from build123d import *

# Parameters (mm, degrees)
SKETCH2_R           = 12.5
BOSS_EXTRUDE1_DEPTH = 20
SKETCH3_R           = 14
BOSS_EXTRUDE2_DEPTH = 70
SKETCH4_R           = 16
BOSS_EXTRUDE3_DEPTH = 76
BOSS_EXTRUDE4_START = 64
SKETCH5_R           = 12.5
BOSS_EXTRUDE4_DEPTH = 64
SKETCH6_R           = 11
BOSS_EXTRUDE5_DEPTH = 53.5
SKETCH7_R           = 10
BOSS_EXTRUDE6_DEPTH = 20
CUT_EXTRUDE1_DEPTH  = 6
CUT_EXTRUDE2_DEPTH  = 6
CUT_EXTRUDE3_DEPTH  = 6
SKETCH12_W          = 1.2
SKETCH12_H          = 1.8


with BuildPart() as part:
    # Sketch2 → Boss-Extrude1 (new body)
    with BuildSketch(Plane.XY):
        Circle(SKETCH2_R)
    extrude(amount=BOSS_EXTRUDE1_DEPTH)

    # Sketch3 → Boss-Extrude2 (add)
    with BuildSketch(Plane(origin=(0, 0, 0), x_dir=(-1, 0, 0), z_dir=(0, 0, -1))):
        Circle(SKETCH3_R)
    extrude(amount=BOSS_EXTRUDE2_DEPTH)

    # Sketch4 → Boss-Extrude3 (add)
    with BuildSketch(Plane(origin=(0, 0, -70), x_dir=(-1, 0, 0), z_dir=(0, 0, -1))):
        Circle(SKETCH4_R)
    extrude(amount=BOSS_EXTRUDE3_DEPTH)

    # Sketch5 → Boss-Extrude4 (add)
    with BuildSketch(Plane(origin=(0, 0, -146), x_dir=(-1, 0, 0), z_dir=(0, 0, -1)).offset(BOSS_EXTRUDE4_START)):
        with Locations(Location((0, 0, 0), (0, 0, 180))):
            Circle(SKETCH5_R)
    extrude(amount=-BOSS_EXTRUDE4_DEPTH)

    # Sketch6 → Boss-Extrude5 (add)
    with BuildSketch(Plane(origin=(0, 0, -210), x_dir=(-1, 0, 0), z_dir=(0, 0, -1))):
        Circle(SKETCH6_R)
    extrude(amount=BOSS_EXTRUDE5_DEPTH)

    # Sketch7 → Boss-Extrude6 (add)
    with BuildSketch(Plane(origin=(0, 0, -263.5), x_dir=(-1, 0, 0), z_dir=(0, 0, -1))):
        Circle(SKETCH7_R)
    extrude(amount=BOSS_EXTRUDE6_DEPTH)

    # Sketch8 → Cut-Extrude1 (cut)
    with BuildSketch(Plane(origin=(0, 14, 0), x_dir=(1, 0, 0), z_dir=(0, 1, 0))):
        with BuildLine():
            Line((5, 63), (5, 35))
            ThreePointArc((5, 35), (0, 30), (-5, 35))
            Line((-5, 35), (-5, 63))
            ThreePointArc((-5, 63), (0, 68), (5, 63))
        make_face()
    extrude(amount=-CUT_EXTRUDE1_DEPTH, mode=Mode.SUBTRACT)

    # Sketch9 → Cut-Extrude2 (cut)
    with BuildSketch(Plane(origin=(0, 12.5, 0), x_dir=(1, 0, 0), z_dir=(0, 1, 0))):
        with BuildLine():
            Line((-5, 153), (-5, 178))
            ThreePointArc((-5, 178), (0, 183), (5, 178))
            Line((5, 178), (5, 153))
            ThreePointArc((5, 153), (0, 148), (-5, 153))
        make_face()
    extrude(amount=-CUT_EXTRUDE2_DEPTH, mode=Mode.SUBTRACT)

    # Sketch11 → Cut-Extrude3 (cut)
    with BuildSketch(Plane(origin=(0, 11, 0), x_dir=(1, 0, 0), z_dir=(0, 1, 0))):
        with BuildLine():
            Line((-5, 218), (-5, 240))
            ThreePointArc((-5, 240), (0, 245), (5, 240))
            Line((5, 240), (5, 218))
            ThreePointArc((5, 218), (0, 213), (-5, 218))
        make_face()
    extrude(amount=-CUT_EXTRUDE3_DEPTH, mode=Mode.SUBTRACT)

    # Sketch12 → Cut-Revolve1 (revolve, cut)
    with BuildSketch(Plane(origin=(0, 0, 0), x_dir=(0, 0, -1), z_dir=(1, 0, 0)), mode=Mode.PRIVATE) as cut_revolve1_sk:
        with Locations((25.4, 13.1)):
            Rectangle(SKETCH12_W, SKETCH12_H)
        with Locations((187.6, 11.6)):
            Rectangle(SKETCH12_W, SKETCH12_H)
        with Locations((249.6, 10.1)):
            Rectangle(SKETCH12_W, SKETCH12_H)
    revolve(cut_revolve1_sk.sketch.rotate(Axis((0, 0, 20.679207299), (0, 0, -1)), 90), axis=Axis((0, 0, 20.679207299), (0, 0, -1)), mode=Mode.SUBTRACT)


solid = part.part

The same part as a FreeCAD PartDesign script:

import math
import FreeCAD as App
import Part
import Sketcher

V = App.Vector

doc = App.newDocument("Part")
params = doc.addObject("Spreadsheet::Sheet", "Params")
for row, (alias, value) in enumerate([
    ("sketch1_diameter", "25 mm"),
    ("pad1_length", "20 mm"),
    ("sketch2_diameter", "28 mm"),
    ("pad2_length", "70 mm"),
    ("sketch3_diameter", "32 mm"),
    ("pad3_length", "76 mm"),
    ("sketch4_diameter", "25 mm"),
    ("pad4_length", "64 mm"),
    ("sketch5_diameter", "22 mm"),
    ("pad5_length", "53.5 mm"),
    ("sketch6_diameter", "20 mm"),
    ("pad6_length", "20 mm"),
    ("sketch7_radius", "5 mm"),
    ("sketch7_height", "28 mm"),
    ("pocket1_length", "6 mm"),
    ("sketch8_radius", "5 mm"),
    ("sketch8_height", "25 mm"),
    ("pocket2_length", "6 mm"),
    ("sketch9_radius", "5 mm"),
    ("sketch9_height", "22 mm"),
    ("pocket3_length", "6 mm"),
    ("sketch10_width", "1.8 mm"),
    ("sketch10_height", "1.2 mm"),
    ("groove_angle", "360 deg"),
], start=1):
    params.set(f"A{row}", alias)
    params.set(f"B{row}", "=" + value)
    params.setAlias(f"B{row}", alias)

body = doc.addObject("PartDesign::Body", "Body")

# Sketch on XY plane
sketch1 = body.newObject("Sketcher::SketchObject", "Sketch")
sketch1.AttachmentSupport = (doc.getObject("XY_Plane"), [""])
sketch1.MapMode = "FlatFace"
sketch1.addGeometry(Part.Circle(V(0, 0, 0), V(0, 0, 1), 12.5), False)
sketch1.addConstraint([
    Sketcher.Constraint("Coincident", 0, 3, -1, 1),
    Sketcher.Constraint("Diameter", 0, 25.0),
])
sketch1.setExpression("Constraints[1]", "Params.sketch1_diameter")
pad1 = body.newObject("PartDesign::Pad", "Pad")
pad1.Profile = sketch1
pad1.setExpression("Length", "Params.pad1_length")

# Sketch on XY plane
sketch2 = body.newObject("Sketcher::SketchObject", "Sketch001")
sketch2.AttachmentSupport = (doc.getObject("XY_Plane"), [""])
sketch2.MapMode = "FlatFace"
sketch2.addGeometry(Part.Circle(V(0, 0, 0), V(0, 0, 1), 14), False)
sketch2.addConstraint([
    Sketcher.Constraint("Coincident", 0, 3, -1, 1),
    Sketcher.Constraint("Diameter", 0, 28.0),
])
sketch2.setExpression("Constraints[1]", "Params.sketch2_diameter")
pad2 = body.newObject("PartDesign::Pad", "Pad001")
pad2.Profile = sketch2
pad2.setExpression("Length", "Params.pad2_length")
pad2.Reversed = True

# Sketch on XY plane
sketch3 = body.newObject("Sketcher::SketchObject", "Sketch002")
sketch3.AttachmentSupport = (doc.getObject("XY_Plane"), [""])
sketch3.MapMode = "FlatFace"
sketch3.AttachmentOffset = App.Placement(V(0, 0, -70), App.Rotation())
sketch3.addGeometry(Part.Circle(V(0, 0, 0), V(0, 0, 1), 16), False)
sketch3.addConstraint([
    Sketcher.Constraint("Coincident", 0, 3, -1, 1),
    Sketcher.Constraint("Diameter", 0, 32.0),
])
sketch3.setExpression("Constraints[1]", "Params.sketch3_diameter")
pad3 = body.newObject("PartDesign::Pad", "Pad002")
pad3.Profile = sketch3
pad3.setExpression("Length", "Params.pad3_length")
pad3.Reversed = True

# Sketch on XY plane
sketch4 = body.newObject("Sketcher::SketchObject", "Sketch003")
sketch4.AttachmentSupport = (doc.getObject("XY_Plane"), [""])
sketch4.MapMode = "FlatFace"
sketch4.AttachmentOffset = App.Placement(V(0, 0, -210), App.Rotation())
sketch4.addGeometry(Part.Circle(V(0, 0, 0), V(0, 0, 1), 12.5), False)
sketch4.addConstraint([
    Sketcher.Constraint("Coincident", 0, 3, -1, 1),
    Sketcher.Constraint("Diameter", 0, 25.0),
])
sketch4.setExpression("Constraints[1]", "Params.sketch4_diameter")
pad4 = body.newObject("PartDesign::Pad", "Pad003")
pad4.Profile = sketch4
pad4.setExpression("Length", "Params.pad4_length")

# Sketch on XY plane
sketch5 = body.newObject("Sketcher::SketchObject", "Sketch004")
sketch5.AttachmentSupport = (doc.getObject("XY_Plane"), [""])
sketch5.MapMode = "FlatFace"
sketch5.AttachmentOffset = App.Placement(V(0, 0, -210), App.Rotation())
sketch5.addGeometry(Part.Circle(V(0, 0, 0), V(0, 0, 1), 11), False)
sketch5.addConstraint([
    Sketcher.Constraint("Coincident", 0, 3, -1, 1),
    Sketcher.Constraint("Diameter", 0, 22.0),
])
sketch5.setExpression("Constraints[1]", "Params.sketch5_diameter")
pad5 = body.newObject("PartDesign::Pad", "Pad004")
pad5.Profile = sketch5
pad5.setExpression("Length", "Params.pad5_length")
pad5.Reversed = True

# Sketch on XY plane
sketch6 = body.newObject("Sketcher::SketchObject", "Sketch005")
sketch6.AttachmentSupport = (doc.getObject("XY_Plane"), [""])
sketch6.MapMode = "FlatFace"
sketch6.AttachmentOffset = App.Placement(V(0, 0, -263.5), App.Rotation())
sketch6.addGeometry(Part.Circle(V(0, 0, 0), V(0, 0, 1), 10), False)
sketch6.addConstraint([
    Sketcher.Constraint("Coincident", 0, 3, -1, 1),
    Sketcher.Constraint("Diameter", 0, 20.0),
])
sketch6.setExpression("Constraints[1]", "Params.sketch6_diameter")
pad6 = body.newObject("PartDesign::Pad", "Pad005")
pad6.Profile = sketch6
pad6.setExpression("Length", "Params.pad6_length")
pad6.Reversed = True

# Sketch on XZ plane
sketch7 = body.newObject("Sketcher::SketchObject", "Sketch006")
sketch7.AttachmentSupport = (doc.getObject("XZ_Plane"), [""])
sketch7.MapMode = "FlatFace"
sketch7.AttachmentOffset = App.Placement(V(0, 0, -14), App.Rotation())
sketch7.addGeometry([
    Part.LineSegment(V(5, -35, 0), V(5, -63, 0)),
    Part.ArcOfCircle(Part.Circle(V(0, -63, 0), V(0, 0, 1), 5), math.radians(180), math.radians(360)),
    Part.LineSegment(V(-5, -63, 0), V(-5, -35, 0)),
    Part.ArcOfCircle(Part.Circle(V(0, -35, 0), V(0, 0, 1), 5), math.radians(0), math.radians(180)),
], False)
sketch7.addConstraint([
    Sketcher.Constraint("Tangent", 0, 2, 1, 2),
    Sketcher.Constraint("Tangent", 1, 1, 2, 1),
    Sketcher.Constraint("Tangent", 2, 2, 3, 2),
    Sketcher.Constraint("Tangent", 3, 1, 0, 1),
    Sketcher.Constraint("Vertical", 0),
    Sketcher.Constraint("Vertical", 2),
    Sketcher.Constraint("PointOnObject", 1, 3, -2),
    Sketcher.Constraint("Radius", 1, 5.0),
    Sketcher.Constraint("DistanceY", 0, 2, 0, 1, 28.0),
    Sketcher.Constraint("DistanceY", 1, 3, -1, 1, 63.0),
])
sketch7.setExpression("Constraints[7]", "Params.sketch7_radius")
sketch7.setExpression("Constraints[8]", "Params.sketch7_height")
pocket1 = body.newObject("PartDesign::Pocket", "Pocket")
pocket1.Profile = sketch7
pocket1.setExpression("Length", "Params.pocket1_length")
pocket1.Reversed = True

# Sketch on XZ plane
sketch8 = body.newObject("Sketcher::SketchObject", "Sketch007")
sketch8.AttachmentSupport = (doc.getObject("XZ_Plane"), [""])
sketch8.MapMode = "FlatFace"
sketch8.AttachmentOffset = App.Placement(V(0, 0, -12.5), App.Rotation())
sketch8.addGeometry([
    Part.LineSegment(V(-5, -178, 0), V(-5, -153, 0)),
    Part.ArcOfCircle(Part.Circle(V(0, -153, 0), V(0, 0, 1), 5), math.radians(0), math.radians(180)),
    Part.LineSegment(V(5, -153, 0), V(5, -178, 0)),
    Part.ArcOfCircle(Part.Circle(V(0, -178, 0), V(0, 0, 1), 5), math.radians(180), math.radians(360)),
], False)
sketch8.addConstraint([
    Sketcher.Constraint("Tangent", 0, 2, 1, 2),
    Sketcher.Constraint("Tangent", 1, 1, 2, 1),
    Sketcher.Constraint("Tangent", 2, 2, 3, 2),
    Sketcher.Constraint("Tangent", 3, 1, 0, 1),
    Sketcher.Constraint("Vertical", 0),
    Sketcher.Constraint("Vertical", 2),
    Sketcher.Constraint("PointOnObject", 1, 3, -2),
    Sketcher.Constraint("Radius", 1, 5.0),
    Sketcher.Constraint("DistanceY", 0, 1, 0, 2, 25.0),
    Sketcher.Constraint("DistanceY", 1, 3, -1, 1, 153.0),
])
sketch8.setExpression("Constraints[7]", "Params.sketch8_radius")
sketch8.setExpression("Constraints[8]", "Params.sketch8_height")
pocket2 = body.newObject("PartDesign::Pocket", "Pocket001")
pocket2.Profile = sketch8
pocket2.setExpression("Length", "Params.pocket2_length")
pocket2.Reversed = True

# Sketch on XZ plane
sketch9 = body.newObject("Sketcher::SketchObject", "Sketch008")
sketch9.AttachmentSupport = (doc.getObject("XZ_Plane"), [""])
sketch9.MapMode = "FlatFace"
sketch9.AttachmentOffset = App.Placement(V(0, 0, -11), App.Rotation())
sketch9.addGeometry([
    Part.LineSegment(V(-5, -240, 0), V(-5, -218, 0)),
    Part.ArcOfCircle(Part.Circle(V(0, -218, 0), V(0, 0, 1), 5), math.radians(0), math.radians(180)),
    Part.LineSegment(V(5, -218, 0), V(5, -240, 0)),
    Part.ArcOfCircle(Part.Circle(V(0, -240, 0), V(0, 0, 1), 5), math.radians(180), math.radians(360)),
], False)
sketch9.addConstraint([
    Sketcher.Constraint("Tangent", 0, 2, 1, 2),
    Sketcher.Constraint("Tangent", 1, 1, 2, 1),
    Sketcher.Constraint("Tangent", 2, 2, 3, 2),
    Sketcher.Constraint("Tangent", 3, 1, 0, 1),
    Sketcher.Constraint("Vertical", 0),
    Sketcher.Constraint("Vertical", 2),
    Sketcher.Constraint("PointOnObject", 1, 3, -2),
    Sketcher.Constraint("Radius", 1, 5.0),
    Sketcher.Constraint("DistanceY", 0, 1, 0, 2, 22.0),
    Sketcher.Constraint("DistanceY", 1, 3, -1, 1, 218.0),
])
sketch9.setExpression("Constraints[7]", "Params.sketch9_radius")
sketch9.setExpression("Constraints[8]", "Params.sketch9_height")
pocket3 = body.newObject("PartDesign::Pocket", "Pocket002")
pocket3.Profile = sketch9
pocket3.setExpression("Length", "Params.pocket3_length")
pocket3.Reversed = True

# Sketch on YZ plane
sketch10 = body.newObject("Sketcher::SketchObject", "Sketch009")
sketch10.AttachmentSupport = (doc.getObject("YZ_Plane"), [""])
sketch10.MapMode = "FlatFace"
sketch10.addGeometry([
    Part.LineSegment(V(14, -24.8, 0), V(12.2, -24.8, 0)),  # 0
    Part.LineSegment(V(12.2, -24.8, 0), V(12.2, -26, 0)),  # 1
    Part.LineSegment(V(12.2, -26, 0), V(14, -26, 0)),  # 2
    Part.LineSegment(V(14, -26, 0), V(14, -24.8, 0)),  # 3
    Part.LineSegment(V(12.5, -187, 0), V(10.7, -187, 0)),  # 4
    Part.LineSegment(V(10.7, -187, 0), V(10.7, -188.2, 0)),  # 5
    Part.LineSegment(V(10.7, -188.2, 0), V(12.5, -188.2, 0)),  # 6
    Part.LineSegment(V(12.5, -188.2, 0), V(12.5, -187, 0)),  # 7
    Part.LineSegment(V(11, -249, 0), V(9.2, -249, 0)),  # 8
    Part.LineSegment(V(9.2, -249, 0), V(9.2, -250.2, 0)),  # 9
    Part.LineSegment(V(9.2, -250.2, 0), V(11, -250.2, 0)),  # 10
    Part.LineSegment(V(11, -250.2, 0), V(11, -249, 0)),  # 11
], False)
sketch10.addConstraint([
    Sketcher.Constraint("Coincident", 0, 2, 1, 1),
    Sketcher.Constraint("Coincident", 1, 2, 2, 1),
    Sketcher.Constraint("Coincident", 2, 2, 3, 1),
    Sketcher.Constraint("Coincident", 3, 2, 0, 1),
    Sketcher.Constraint("Coincident", 4, 2, 5, 1),
    Sketcher.Constraint("Coincident", 5, 2, 6, 1),
    Sketcher.Constraint("Coincident", 6, 2, 7, 1),
    Sketcher.Constraint("Coincident", 7, 2, 4, 1),
    Sketcher.Constraint("Coincident", 8, 2, 9, 1),
    Sketcher.Constraint("Coincident", 9, 2, 10, 1),
    Sketcher.Constraint("Coincident", 10, 2, 11, 1),
    Sketcher.Constraint("Coincident", 11, 2, 8, 1),
    Sketcher.Constraint("Horizontal", 0),
    Sketcher.Constraint("Vertical", 1),
    Sketcher.Constraint("Horizontal", 2),
    Sketcher.Constraint("Vertical", 3),
    Sketcher.Constraint("Horizontal", 4),
    Sketcher.Constraint("Vertical", 5),
    Sketcher.Constraint("Horizontal", 6),
    Sketcher.Constraint("Vertical", 7),
    Sketcher.Constraint("Horizontal", 8),
    Sketcher.Constraint("Vertical", 9),
    Sketcher.Constraint("Horizontal", 10),
    Sketcher.Constraint("Vertical", 11),
    Sketcher.Constraint("Equal", 2, 4),
    Sketcher.Constraint("Equal", 6, 8),
    Sketcher.Constraint("Equal", 3, 5),
    Sketcher.Constraint("Equal", 7, 9),
    Sketcher.Constraint("DistanceX", 0, 2, 0, 1, 1.8),
    Sketcher.Constraint("DistanceY", 1, 2, 1, 1, 1.2),
    Sketcher.Constraint("DistanceY", 1, 2, -1, 1, 26.0),
    Sketcher.Constraint("DistanceX", -1, 1, 2, 2, 14.0),
    Sketcher.Constraint("DistanceY", 4, 2, -1, 1, 187.0),
    Sketcher.Constraint("DistanceY", 8, 2, -1, 1, 249.0),
    Sketcher.Constraint("DistanceX", -1, 1, 10, 2, 11.0),
    Sketcher.Constraint("DistanceX", -1, 1, 4, 2, 10.7),
])
sketch10.setExpression("Constraints[28]", "Params.sketch10_width")
sketch10.setExpression("Constraints[29]", "Params.sketch10_height")
groove = body.newObject("PartDesign::Groove", "Groove")
groove.Profile = sketch10
groove.ReferenceAxis = (sketch10, ["V_Axis"])
groove.setExpression("Angle", "Params.groove_angle")

doc.recompute()
